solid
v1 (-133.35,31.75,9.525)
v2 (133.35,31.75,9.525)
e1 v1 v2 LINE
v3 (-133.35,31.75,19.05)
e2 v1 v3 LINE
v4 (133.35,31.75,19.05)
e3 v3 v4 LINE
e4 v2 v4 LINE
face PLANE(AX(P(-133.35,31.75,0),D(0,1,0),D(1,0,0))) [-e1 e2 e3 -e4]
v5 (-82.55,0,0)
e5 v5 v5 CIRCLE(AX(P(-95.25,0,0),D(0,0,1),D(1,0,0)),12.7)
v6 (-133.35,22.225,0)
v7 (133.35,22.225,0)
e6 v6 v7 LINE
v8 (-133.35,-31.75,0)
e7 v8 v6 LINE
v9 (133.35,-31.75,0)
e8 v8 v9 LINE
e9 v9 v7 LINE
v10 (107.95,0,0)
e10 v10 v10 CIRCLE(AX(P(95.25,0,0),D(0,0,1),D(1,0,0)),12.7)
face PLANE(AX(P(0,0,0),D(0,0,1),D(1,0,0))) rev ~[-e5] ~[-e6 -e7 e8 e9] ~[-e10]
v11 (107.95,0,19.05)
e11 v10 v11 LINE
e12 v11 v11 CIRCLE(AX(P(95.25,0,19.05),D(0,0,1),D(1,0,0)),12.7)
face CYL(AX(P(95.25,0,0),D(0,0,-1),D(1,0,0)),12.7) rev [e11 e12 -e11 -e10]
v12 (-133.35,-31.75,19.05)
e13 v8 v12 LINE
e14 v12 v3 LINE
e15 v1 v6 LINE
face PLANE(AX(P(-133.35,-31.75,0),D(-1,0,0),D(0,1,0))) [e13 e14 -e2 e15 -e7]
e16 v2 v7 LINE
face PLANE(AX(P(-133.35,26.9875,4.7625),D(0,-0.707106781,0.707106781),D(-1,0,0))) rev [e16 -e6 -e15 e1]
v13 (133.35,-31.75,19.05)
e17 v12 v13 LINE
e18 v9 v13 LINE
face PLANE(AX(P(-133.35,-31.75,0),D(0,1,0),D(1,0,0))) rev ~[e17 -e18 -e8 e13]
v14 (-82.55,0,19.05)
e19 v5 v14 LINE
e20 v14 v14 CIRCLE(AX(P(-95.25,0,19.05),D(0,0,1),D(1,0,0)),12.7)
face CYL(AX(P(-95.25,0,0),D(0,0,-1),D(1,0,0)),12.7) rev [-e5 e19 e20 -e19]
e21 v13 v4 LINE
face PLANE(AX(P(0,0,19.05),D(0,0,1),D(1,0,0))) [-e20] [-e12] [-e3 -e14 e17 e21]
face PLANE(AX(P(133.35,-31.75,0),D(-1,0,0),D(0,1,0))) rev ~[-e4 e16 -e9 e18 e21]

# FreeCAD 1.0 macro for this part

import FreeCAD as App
import Part
import Sketcher
Q = App.Units.Quantity


def edges_at(feature, points):
    """Names of the edges that pass closest to the given points."""
    edges = feature.Shape.Edges
    near = lambda p: min(range(len(edges)), key=lambda i: edges[i].distToShape(Part.Vertex(*p))[0])
    return sorted({f"Edge{near(p) + 1}" for p in points})


def add_polygon(sketch, points):
    """Adds a closed chain of lines whose ends are joined by coincident constraints."""
    first, n = sketch.GeometryCount, len(points)
    for a, b in zip(points, points[1:] + points[:1]):
        sketch.addGeometry(Part.LineSegment(App.Vector(*a, 0), App.Vector(*b, 0)), False)
    for i in range(n):
        sketch.addConstraint(Sketcher.Constraint("Coincident", first + i, 2, first + (i + 1) % n, 1))

doc = App.newDocument("Part")
body = doc.addObject("PartDesign::Body", "Body")

# Sketch on XY plane
sketch1 = body.newObject("Sketcher::SketchObject", "Sketch")
sketch1.AttachmentSupport = (doc.getObject("XY_Plane"), [""])
sketch1.MapMode = "FlatFace"
add_polygon(sketch1, [(-133.35, 31.75), (-133.35, -31.75), (133.35, -31.75), (133.35, 31.75)])  # lines 0-3
sketch1.addGeometry(Part.Circle(App.Vector(-95.25, 0, 0), App.Vector(0, 0, 1), 12.7), False)  # 4
sketch1.addGeometry(Part.Circle(App.Vector(95.25, 0, 0), App.Vector(0, 0, 1), 12.7), False)  # 5
sketch1.addConstraint([
    Sketcher.Constraint("Vertical", 0),
    Sketcher.Constraint("Horizontal", 1),
    Sketcher.Constraint("Vertical", 2),
    Sketcher.Constraint("Horizontal", 3),
    Sketcher.Constraint("Equal", 4, 5),
    Sketcher.Constraint("Symmetric", 4, 3, 5, 3, -1, 1),
    Sketcher.Constraint("Symmetric", 0, 2, 2, 2, -1, 1),
    Sketcher.Constraint("PointOnObject", 4, 3, -1),
    Sketcher.Constraint("Diameter", 4, Q("1 in")),
    Sketcher.Constraint("DistanceX", 1, 1, 1, 2, Q("10.5 in")),
    Sketcher.Constraint("DistanceY", 0, 2, 0, 1, Q("2.5 in")),
    Sketcher.Constraint("DistanceX", 0, 2, 5, 3, Q("9 in")),
])
pad1 = body.newObject("PartDesign::Pad", "Pad")
pad1.Profile = sketch1
pad1.Length = Q("0.75 in")
doc.recompute()

chamfer = body.newObject("PartDesign::Chamfer", "Chamfer")
chamfer.Base = (pad1, edges_at(pad1, [(0, 31.75, 0)]))
chamfer.Size = Q("0.375 in")

doc.recompute()
